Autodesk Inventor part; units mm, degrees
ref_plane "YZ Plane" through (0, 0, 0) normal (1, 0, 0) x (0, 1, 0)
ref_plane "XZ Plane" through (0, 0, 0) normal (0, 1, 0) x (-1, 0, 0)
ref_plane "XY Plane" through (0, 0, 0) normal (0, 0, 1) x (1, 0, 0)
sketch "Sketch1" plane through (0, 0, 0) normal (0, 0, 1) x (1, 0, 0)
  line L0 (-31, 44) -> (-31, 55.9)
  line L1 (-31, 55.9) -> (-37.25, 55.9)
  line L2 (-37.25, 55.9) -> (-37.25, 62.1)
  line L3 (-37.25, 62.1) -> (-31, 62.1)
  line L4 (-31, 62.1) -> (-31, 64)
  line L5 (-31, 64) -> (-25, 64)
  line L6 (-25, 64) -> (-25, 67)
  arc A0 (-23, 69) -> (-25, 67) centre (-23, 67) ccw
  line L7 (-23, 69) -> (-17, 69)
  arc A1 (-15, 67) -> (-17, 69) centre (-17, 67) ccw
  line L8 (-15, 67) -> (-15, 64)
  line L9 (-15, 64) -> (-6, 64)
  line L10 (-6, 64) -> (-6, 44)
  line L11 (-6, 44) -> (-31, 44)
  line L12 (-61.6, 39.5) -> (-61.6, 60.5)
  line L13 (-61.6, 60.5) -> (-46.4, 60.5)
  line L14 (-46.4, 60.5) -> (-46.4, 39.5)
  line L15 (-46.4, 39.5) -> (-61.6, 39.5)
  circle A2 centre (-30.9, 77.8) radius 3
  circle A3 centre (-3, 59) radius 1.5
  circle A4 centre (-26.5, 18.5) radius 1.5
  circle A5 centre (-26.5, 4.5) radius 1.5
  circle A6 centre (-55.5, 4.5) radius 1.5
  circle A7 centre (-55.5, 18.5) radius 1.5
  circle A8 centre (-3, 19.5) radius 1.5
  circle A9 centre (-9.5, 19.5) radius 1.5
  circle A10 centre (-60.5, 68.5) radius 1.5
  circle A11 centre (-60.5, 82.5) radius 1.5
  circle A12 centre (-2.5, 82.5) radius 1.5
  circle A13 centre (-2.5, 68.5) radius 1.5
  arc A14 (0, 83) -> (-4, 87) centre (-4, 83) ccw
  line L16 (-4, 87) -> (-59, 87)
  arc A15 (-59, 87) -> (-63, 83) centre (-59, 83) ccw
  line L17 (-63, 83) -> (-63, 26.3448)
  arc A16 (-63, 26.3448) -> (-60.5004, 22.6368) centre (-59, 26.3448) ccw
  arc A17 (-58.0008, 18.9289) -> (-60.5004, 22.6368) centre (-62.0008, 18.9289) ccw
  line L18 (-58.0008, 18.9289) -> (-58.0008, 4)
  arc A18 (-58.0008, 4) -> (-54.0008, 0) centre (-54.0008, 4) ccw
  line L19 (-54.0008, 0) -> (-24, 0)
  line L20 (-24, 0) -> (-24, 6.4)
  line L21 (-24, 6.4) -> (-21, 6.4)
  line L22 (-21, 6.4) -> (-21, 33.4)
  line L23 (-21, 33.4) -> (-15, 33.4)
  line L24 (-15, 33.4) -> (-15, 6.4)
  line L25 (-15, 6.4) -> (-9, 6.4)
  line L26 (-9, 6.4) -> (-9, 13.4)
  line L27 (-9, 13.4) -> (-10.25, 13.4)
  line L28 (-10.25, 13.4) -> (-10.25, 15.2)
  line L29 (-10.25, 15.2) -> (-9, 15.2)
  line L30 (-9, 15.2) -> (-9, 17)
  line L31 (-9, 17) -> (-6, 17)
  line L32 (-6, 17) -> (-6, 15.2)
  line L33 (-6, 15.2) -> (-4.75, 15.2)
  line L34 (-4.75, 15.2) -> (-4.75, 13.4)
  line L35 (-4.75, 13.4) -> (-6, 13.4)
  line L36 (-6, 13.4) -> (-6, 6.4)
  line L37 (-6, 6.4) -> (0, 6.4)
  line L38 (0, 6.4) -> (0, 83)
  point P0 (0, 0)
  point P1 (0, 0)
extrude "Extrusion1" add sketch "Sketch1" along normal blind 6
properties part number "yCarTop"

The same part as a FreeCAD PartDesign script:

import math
import FreeCAD as App
import Part
import Sketcher

V = App.Vector

doc = App.newDocument("Part")
params = doc.addObject("Spreadsheet::Sheet", "Params")
for row, (alias, value) in enumerate([
    ("sketch1_diameter", "3 mm"),
    ("sketch1_diameter2", "6 mm"),
    ("sketch1_radius", "4 mm"),
    ("sketch1_radius2", "2 mm"),
    ("sketch1_width", "55 mm"),
    ("pad1_length", "6 mm"),
], start=1):
    params.set(f"A{row}", alias)
    params.set(f"B{row}", "=" + value)
    params.setAlias(f"B{row}", alias)

body = doc.addObject("PartDesign::Body", "Body")

sketch1 = doc.addObject("Sketcher::SketchObject", "Sketch")
body.addObject(sketch1)
sketch1.AttachmentSupport = (doc.XY_Plane, [""])
sketch1.MapMode = "FlatFace"
sketch1.addGeometry([
    Part.LineSegment(V(0, 6.4, 0), V(0, 83, 0)),
    Part.ArcOfCircle(Part.Circle(V(-4, 83, 0), V(0, 0, 1), 4), math.radians(0), math.radians(90)),
    Part.LineSegment(V(-4, 87, 0), V(-59, 87, 0)),
    Part.ArcOfCircle(Part.Circle(V(-59, 83, 0), V(0, 0, 1), 4), math.radians(90), math.radians(180)),
    Part.LineSegment(V(-63, 83, 0), V(-63, 26.3, 0)),
    Part.ArcOfCircle(Part.Circle(V(-59, 26.3, 0), V(0, 0, 1), 4), math.radians(180), math.radians(248)),
    Part.ArcOfCircle(Part.Circle(V(-62, 18.9, 0), V(0, 0, 1), 4), math.radians(0), math.radians(68)),
    Part.LineSegment(V(-58, 18.9, 0), V(-58, 4, 0)),
    Part.ArcOfCircle(Part.Circle(V(-54, 4, 0), V(0, 0, 1), 4), math.radians(180), math.radians(270)),
    Part.LineSegment(V(-54, 0, 0), V(-24, 0, 0)),
    Part.LineSegment(V(-24, 0, 0), V(-24, 6.4, 0)),
    Part.LineSegment(V(-24, 6.4, 0), V(-21, 6.4, 0)),
    Part.LineSegment(V(-21, 6.4, 0), V(-21, 33.4, 0)),
    Part.LineSegment(V(-21, 33.4, 0), V(-15, 33.4, 0)),
    Part.LineSegment(V(-15, 33.4, 0), V(-15, 6.4, 0)),
    Part.LineSegment(V(-15, 6.4, 0), V(-9, 6.4, 0)),
    Part.LineSegment(V(-9, 6.4, 0), V(-9, 13.4, 0)),
    Part.LineSegment(V(-9, 13.4, 0), V(-10.2, 13.4, 0)),
    Part.LineSegment(V(-10.2, 13.4, 0), V(-10.2, 15.2, 0)),
    Part.LineSegment(V(-10.2, 15.2, 0), V(-9, 15.2, 0)),
    Part.LineSegment(V(-9, 15.2, 0), V(-9, 17, 0)),
    Part.LineSegment(V(-9, 17, 0), V(-6, 17, 0)),
    Part.LineSegment(V(-6, 17, 0), V(-6, 15.2, 0)),
    Part.LineSegment(V(-6, 15.2, 0), V(-4.8, 15.2, 0)),
    Part.LineSegment(V(-4.8, 15.2, 0), V(-4.8, 13.4, 0)),
    Part.LineSegment(V(-4.8, 13.4, 0), V(-6, 13.4, 0)),
    Part.LineSegment(V(-6, 13.4, 0), V(-6, 6.4, 0)),
    Part.LineSegment(V(-6, 6.4, 0), V(0, 6.4, 0)),
    Part.Circle(V(-55.5, 4.5, 0), V(0, 0, 1), 1.5),
    Part.Circle(V(-55.5, 18.5, 0), V(0, 0, 1), 1.5),
    Part.Circle(V(-26.5, 4.5, 0), V(0, 0, 1), 1.5),
    Part.Circle(V(-26.5, 18.5, 0), V(0, 0, 1), 1.5),
    Part.Circle(V(-9.5, 19.5, 0), V(0, 0, 1), 1.5),
    Part.Circle(V(-3, 19.5, 0), V(0, 0, 1), 1.5),
    Part.LineSegment(V(-46.4, 39.5, 0), V(-61.6, 39.5, 0)),
    Part.LineSegment(V(-61.6, 39.5, 0), V(-61.6, 60.5, 0)),
    Part.LineSegment(V(-61.6, 60.5, 0), V(-46.4, 60.5, 0)),
    Part.LineSegment(V(-46.4, 60.5, 0), V(-46.4, 39.5, 0)),
    Part.Circle(V(-60.5, 68.5, 0), V(0, 0, 1), 1.5),
    Part.Circle(V(-60.5, 82.5, 0), V(0, 0, 1), 1.5),
    Part.LineSegment(V(-6, 44, 0), V(-31, 44, 0)),
    Part.LineSegment(V(-31, 44, 0), V(-31, 55.9, 0)),
    Part.LineSegment(V(-31, 55.9, 0), V(-37.2, 55.9, 0)),
    Part.LineSegment(V(-37.2, 55.9, 0), V(-37.2, 62.1, 0)),
    Part.LineSegment(V(-37.2, 62.1, 0), V(-31, 62.1, 0)),
    Part.LineSegment(V(-31, 62.1, 0), V(-31, 64, 0)),
    Part.LineSegment(V(-31, 64, 0), V(-25, 64, 0)),
    Part.LineSegment(V(-25, 64, 0), V(-25, 67, 0)),
    Part.ArcOfCircle(Part.Circle(V(-23, 67, 0), V(0, 0, 1), 2), math.radians(90), math.radians(180)),
    Part.LineSegment(V(-23, 69, 0), V(-17, 69, 0)),
    Part.ArcOfCircle(Part.Circle(V(-17, 67, 0), V(0, 0, 1), 2), math.radians(0), math.radians(90)),
    Part.LineSegment(V(-15, 67, 0), V(-15, 64, 0)),
    Part.LineSegment(V(-15, 64, 0), V(-6, 64, 0)),
    Part.LineSegment(V(-6, 64, 0), V(-6, 44, 0)),
    Part.Circle(V(-3, 59, 0), V(0, 0, 1), 1.5),
    Part.Circle(V(-30.9, 77.8, 0), V(0, 0, 1), 3),
    Part.Circle(V(-2.5, 68.5, 0), V(0, 0, 1), 1.5),
    Part.Circle(V(-2.5, 82.5, 0), V(0, 0, 1), 1.5),
], False)
sketch1.addConstraint([
    Sketcher.Constraint("Tangent", 0, 2, 1, 1),
    Sketcher.Constraint("Tangent", 1, 2, 2, 1),
    Sketcher.Constraint("Tangent", 2, 2, 3, 1),
    Sketcher.Constraint("Tangent", 3, 2, 4, 1),
    Sketcher.Constraint("Tangent", 4, 2, 5, 1),
    Sketcher.Constraint("Tangent", 5, 2, 6, 2),
    Sketcher.Constraint("Tangent", 6, 1, 7, 1),
    Sketcher.Constraint("Tangent", 7, 2, 8, 1),
    Sketcher.Constraint("Tangent", 8, 2, 9, 1),
    Sketcher.Constraint("Coincident", 9, 2, 10, 1),
    Sketcher.Constraint("Coincident", 10, 2, 11, 1),
    Sketcher.Constraint("Coincident", 11, 2, 12, 1),
    Sketcher.Constraint("Coincident", 12, 2, 13, 1),
    Sketcher.Constraint("Coincident", 13, 2, 14, 1),
    Sketcher.Constraint("Coincident", 14, 2, 15, 1),
    Sketcher.Constraint("Coincident", 15, 2, 16, 1),
    Sketcher.Constraint("Coincident", 16, 2, 17, 1),
    Sketcher.Constraint("Coincident", 17, 2, 18, 1),
    Sketcher.Constraint("Coincident", 18, 2, 19, 1),
    Sketcher.Constraint("Coincident", 19, 2, 20, 1),
    Sketcher.Constraint("Coincident", 20, 2, 21, 1),
    Sketcher.Constraint("Coincident", 21, 2, 22, 1),
    Sketcher.Constraint("Coincident", 22, 2, 23, 1),
    Sketcher.Constraint("Coincident", 23, 2, 24, 1),
    Sketcher.Constraint("Coincident", 24, 2, 25, 1),
    Sketcher.Constraint("Coincident", 25, 2, 26, 1),
    Sketcher.Constraint("Coincident", 26, 2, 27, 1),
    Sketcher.Constraint("Coincident", 27, 2, 0, 1),
    Sketcher.Constraint("Coincident", 34, 2, 35, 1),
    Sketcher.Constraint("Coincident", 35, 2, 36, 1),
    Sketcher.Constraint("Coincident", 36, 2, 37, 1),
    Sketcher.Constraint("Coincident", 37, 2, 34, 1),
    Sketcher.Constraint("Coincident", 40, 2, 41, 1),
    Sketcher.Constraint("Coincident", 41, 2, 42, 1),
    Sketcher.Constraint("Coincident", 42, 2, 43, 1),
    Sketcher.Constraint("Coincident", 43, 2, 44, 1),
    Sketcher.Constraint("Coincident", 44, 2, 45, 1),
    Sketcher.Constraint("Coincident", 45, 2, 46, 1),
    Sketcher.Constraint("Coincident", 46, 2, 47, 1),
    Sketcher.Constraint("Tangent", 47, 2, 48, 2),
    Sketcher.Constraint("Tangent", 48, 1, 49, 1),
    Sketcher.Constraint("Tangent", 49, 2, 50, 2),
    Sketcher.Constraint("Tangent", 50, 1, 51, 1),
    Sketcher.Constraint("Coincident", 51, 2, 52, 1),
    Sketcher.Constraint("Coincident", 52, 2, 53, 1),
    Sketcher.Constraint("Coincident", 53, 2, 40, 1),
    Sketcher.Constraint("Vertical", 0),
    Sketcher.Constraint("Horizontal", 2),
    Sketcher.Constraint("Vertical", 4),
    Sketcher.Constraint("Vertical", 7),
    Sketcher.Constraint("Horizontal", 9),
    Sketcher.Constraint("Vertical", 10),
    Sketcher.Constraint("Horizontal", 11),
    Sketcher.Constraint("Vertical", 12),
    Sketcher.Constraint("Horizontal", 13),
    Sketcher.Constraint("Vertical", 14),
    Sketcher.Constraint("Horizontal", 15),
    Sketcher.Constraint("Vertical", 16),
    Sketcher.Constraint("Horizontal", 17),
    Sketcher.Constraint("Vertical", 18),
    Sketcher.Constraint("Horizontal", 19),
    Sketcher.Constraint("Vertical", 20),
    Sketcher.Constraint("Horizontal", 21),
    Sketcher.Constraint("Vertical", 22),
    Sketcher.Constraint("Horizontal", 23),
    Sketcher.Constraint("Vertical", 24),
    Sketcher.Constraint("Horizontal", 25),
    Sketcher.Constraint("Vertical", 26),
    Sketcher.Constraint("Horizontal", 27),
    Sketcher.Constraint("Horizontal", 34),
    Sketcher.Constraint("Vertical", 35),
    Sketcher.Constraint("Horizontal", 36),
    Sketcher.Constraint("Vertical", 37),
    Sketcher.Constraint("Horizontal", 40),
    Sketcher.Constraint("Vertical", 41),
    Sketcher.Constraint("Horizontal", 42),
    Sketcher.Constraint("Vertical", 43),
    Sketcher.Constraint("Horizontal", 44),
    Sketcher.Constraint("Vertical", 45),
    Sketcher.Constraint("Horizontal", 46),
    Sketcher.Constraint("Vertical", 47),
    Sketcher.Constraint("Horizontal", 49),
    Sketcher.Constraint("Vertical", 51),
    Sketcher.Constraint("Horizontal", 52),
    Sketcher.Constraint("Vertical", 53),
    Sketcher.Constraint("Equal", 1, 3),
    Sketcher.Constraint("Equal", 3, 5),
    Sketcher.Constraint("Equal", 5, 6),
    Sketcher.Constraint("Equal", 6, 8),
    Sketcher.Constraint("Equal", 28, 29),
    Sketcher.Constraint("Equal", 29, 30),
    Sketcher.Constraint("Equal", 30, 31),
    Sketcher.Constraint("Equal", 31, 32),
    Sketcher.Constraint("Equal", 32, 33),
    Sketcher.Constraint("Equal", 33, 38),
    Sketcher.Constraint("Equal", 38, 39),
    Sketcher.Constraint("Equal", 48, 50),
    Sketcher.Constraint("Equal", 39, 54),
    Sketcher.Constraint("Equal", 54, 56),
    Sketcher.Constraint("Equal", 56, 57),
    Sketcher.Constraint("PointOnObject", 0, 2, -2),
    Sketcher.Constraint("PointOnObject", 8, 2, -1),
    Sketcher.Constraint("Horizontal", 28, 3, 30, 3),
    Sketcher.Constraint("Horizontal", 29, 3, 31, 3),
    Sketcher.Constraint("Horizontal", 32, 3, 33, 3),
    Sketcher.Constraint("Horizontal", 38, 3, 56, 3),
    Sketcher.Constraint("Horizontal", 39, 3, 57, 3),
    Sketcher.Constraint("Horizontal", 11, 2, 14, 2),
    Sketcher.Constraint("Horizontal", 19, 2, 22, 2),
    Sketcher.Constraint("Horizontal", 17, 2, 24, 2),
    Sketcher.Constraint("Horizontal", 15, 2, 26, 2),
    Sketcher.Constraint("Horizontal", 46, 2, 51, 2),
    Sketcher.Constraint("Vertical", 28, 3, 29, 3),
    Sketcher.Constraint("Vertical", 30, 3, 31, 3),
    Sketcher.Constraint("Vertical", 38, 3, 39, 3),
    Sketcher.Constraint("Vertical", 33, 3, 54, 3),
    Sketcher.Constraint("Vertical", 56, 3, 57, 3),
    Sketcher.Constraint("Vertical", 16, 2, 19, 2),
    Sketcher.Constraint("Vertical", 22, 2, 25, 2),
    Sketcher.Constraint("Vertical", 41, 2, 44, 2),
    Sketcher.Constraint("Vertical", 14, 2, 50, 1),
    Sketcher.Constraint("Vertical", 26, 2, 52, 2),
    Sketcher.Constraint("Equal", 13, 15),
    Sketcher.Constraint("Equal", 11, 21),
    Sketcher.Constraint("Equal", 19, 23),
    Sketcher.Constraint("Equal", 15, 27),
    Sketcher.Constraint("Equal", 27, 46),
    Sketcher.Constraint("Equal", 46, 49),
    Sketcher.Constraint("Equal", 18, 20),
    Sketcher.Constraint("Equal", 21, 47),
    Sketcher.Constraint("Diameter", 28, 3.0),
    Sketcher.Constraint("Diameter", 55, 6.0),
    Sketcher.Constraint("Radius", 1, 4.0),
    Sketcher.Constraint("Radius", 48, 2.0),
    Sketcher.Constraint("DistanceX", 2, 2, 2, 1, 55.0),
    Sketcher.Constraint("DistanceX", 11, 1, 11, 2, 3.0),
    Sketcher.Constraint("DistanceX", 13, 1, 13, 2, 6.0),
    Sketcher.Constraint("DistanceY", 12, 1, 12, 2, 27.0),
    Sketcher.Constraint("DistanceY", 16, 1, 16, 2, 7.0),
    Sketcher.Constraint("DistanceY", 35, 1, 35, 2, 21.0),
    Sketcher.Constraint("DistanceY", 53, 2, 53, 1, 20.0),
    Sketcher.Constraint("DistanceX", 34, 2, 34, 1, 15.2),
    Sketcher.Constraint("DistanceY", 0, 1, 0, 2, 76.6),
    Sketcher.Constraint("DistanceY", 10, 1, 10, 2, 6.4),
    Sketcher.Constraint("DistanceY", 18, 1, 18, 2, 1.8),
    Sketcher.Constraint("DistanceY", 41, 1, 41, 2, 11.9),
    Sketcher.Constraint("DistanceY", 43, 1, 43, 2, 6.2),
    Sketcher.Constraint("DistanceX", 33, 3, -1, 1, 3.0),
    Sketcher.Constraint("DistanceY", -1, 1, 48, 3, 67.0),
    Sketcher.Constraint("DistanceY", -1, 1, 54, 3, 59.0),
    Sketcher.Constraint("DistanceX", 17, 2, 17, 1, 1.25),
    Sketcher.Constraint("DistanceX", 42, 2, 42, 1, 6.25),
    Sketcher.Constraint("DistanceX", 28, 3, -1, 1, 55.5),
    Sketcher.Constraint("DistanceY", -1, 1, 28, 3, 4.5),
    Sketcher.Constraint("DistanceY", -1, 1, 29, 3, 18.5),
    Sketcher.Constraint("DistanceX", 30, 3, -1, 1, 26.5),
    Sketcher.Constraint("DistanceX", 32, 3, -1, 1, 9.5),
    Sketcher.Constraint("DistanceY", -1, 1, 32, 3, 19.5),
    Sketcher.Constraint("DistanceX", 38, 3, -1, 1, 60.5),
    Sketcher.Constraint("DistanceY", -1, 1, 38, 3, 68.5),
    Sketcher.Constraint("DistanceY", -1, 1, 39, 3, 82.5),
    Sketcher.Constraint("DistanceX", 55, 3, -1, 1, 30.9),
    Sketcher.Constraint("DistanceY", -1, 1, 55, 3, 77.8),
    Sketcher.Constraint("DistanceX", 56, 3, -1, 1, 2.5),
    Sketcher.Constraint("DistanceX", 34, 2, -1, 1, 61.6),
    Sketcher.Constraint("DistanceY", -1, 1, 34, 2, 39.5),
    Sketcher.Constraint("DistanceY", 7, 2, 7, 1, 14.929),
    Sketcher.Constraint("DistanceX", 9, 1, 9, 2, 30.0008),
])
sketch1.setExpression("Constraints[130]", "Params.sketch1_diameter")
sketch1.setExpression("Constraints[131]", "Params.sketch1_diameter2")
sketch1.setExpression("Constraints[132]", "Params.sketch1_radius")
sketch1.setExpression("Constraints[133]", "Params.sketch1_radius2")
sketch1.setExpression("Constraints[134]", "Params.sketch1_width")
pad1 = doc.addObject("PartDesign::Pad", "Pad")
body.addObject(pad1)
pad1.Profile = sketch1
pad1.setExpression("Length", "Params.pad1_length")

doc.recompute()
